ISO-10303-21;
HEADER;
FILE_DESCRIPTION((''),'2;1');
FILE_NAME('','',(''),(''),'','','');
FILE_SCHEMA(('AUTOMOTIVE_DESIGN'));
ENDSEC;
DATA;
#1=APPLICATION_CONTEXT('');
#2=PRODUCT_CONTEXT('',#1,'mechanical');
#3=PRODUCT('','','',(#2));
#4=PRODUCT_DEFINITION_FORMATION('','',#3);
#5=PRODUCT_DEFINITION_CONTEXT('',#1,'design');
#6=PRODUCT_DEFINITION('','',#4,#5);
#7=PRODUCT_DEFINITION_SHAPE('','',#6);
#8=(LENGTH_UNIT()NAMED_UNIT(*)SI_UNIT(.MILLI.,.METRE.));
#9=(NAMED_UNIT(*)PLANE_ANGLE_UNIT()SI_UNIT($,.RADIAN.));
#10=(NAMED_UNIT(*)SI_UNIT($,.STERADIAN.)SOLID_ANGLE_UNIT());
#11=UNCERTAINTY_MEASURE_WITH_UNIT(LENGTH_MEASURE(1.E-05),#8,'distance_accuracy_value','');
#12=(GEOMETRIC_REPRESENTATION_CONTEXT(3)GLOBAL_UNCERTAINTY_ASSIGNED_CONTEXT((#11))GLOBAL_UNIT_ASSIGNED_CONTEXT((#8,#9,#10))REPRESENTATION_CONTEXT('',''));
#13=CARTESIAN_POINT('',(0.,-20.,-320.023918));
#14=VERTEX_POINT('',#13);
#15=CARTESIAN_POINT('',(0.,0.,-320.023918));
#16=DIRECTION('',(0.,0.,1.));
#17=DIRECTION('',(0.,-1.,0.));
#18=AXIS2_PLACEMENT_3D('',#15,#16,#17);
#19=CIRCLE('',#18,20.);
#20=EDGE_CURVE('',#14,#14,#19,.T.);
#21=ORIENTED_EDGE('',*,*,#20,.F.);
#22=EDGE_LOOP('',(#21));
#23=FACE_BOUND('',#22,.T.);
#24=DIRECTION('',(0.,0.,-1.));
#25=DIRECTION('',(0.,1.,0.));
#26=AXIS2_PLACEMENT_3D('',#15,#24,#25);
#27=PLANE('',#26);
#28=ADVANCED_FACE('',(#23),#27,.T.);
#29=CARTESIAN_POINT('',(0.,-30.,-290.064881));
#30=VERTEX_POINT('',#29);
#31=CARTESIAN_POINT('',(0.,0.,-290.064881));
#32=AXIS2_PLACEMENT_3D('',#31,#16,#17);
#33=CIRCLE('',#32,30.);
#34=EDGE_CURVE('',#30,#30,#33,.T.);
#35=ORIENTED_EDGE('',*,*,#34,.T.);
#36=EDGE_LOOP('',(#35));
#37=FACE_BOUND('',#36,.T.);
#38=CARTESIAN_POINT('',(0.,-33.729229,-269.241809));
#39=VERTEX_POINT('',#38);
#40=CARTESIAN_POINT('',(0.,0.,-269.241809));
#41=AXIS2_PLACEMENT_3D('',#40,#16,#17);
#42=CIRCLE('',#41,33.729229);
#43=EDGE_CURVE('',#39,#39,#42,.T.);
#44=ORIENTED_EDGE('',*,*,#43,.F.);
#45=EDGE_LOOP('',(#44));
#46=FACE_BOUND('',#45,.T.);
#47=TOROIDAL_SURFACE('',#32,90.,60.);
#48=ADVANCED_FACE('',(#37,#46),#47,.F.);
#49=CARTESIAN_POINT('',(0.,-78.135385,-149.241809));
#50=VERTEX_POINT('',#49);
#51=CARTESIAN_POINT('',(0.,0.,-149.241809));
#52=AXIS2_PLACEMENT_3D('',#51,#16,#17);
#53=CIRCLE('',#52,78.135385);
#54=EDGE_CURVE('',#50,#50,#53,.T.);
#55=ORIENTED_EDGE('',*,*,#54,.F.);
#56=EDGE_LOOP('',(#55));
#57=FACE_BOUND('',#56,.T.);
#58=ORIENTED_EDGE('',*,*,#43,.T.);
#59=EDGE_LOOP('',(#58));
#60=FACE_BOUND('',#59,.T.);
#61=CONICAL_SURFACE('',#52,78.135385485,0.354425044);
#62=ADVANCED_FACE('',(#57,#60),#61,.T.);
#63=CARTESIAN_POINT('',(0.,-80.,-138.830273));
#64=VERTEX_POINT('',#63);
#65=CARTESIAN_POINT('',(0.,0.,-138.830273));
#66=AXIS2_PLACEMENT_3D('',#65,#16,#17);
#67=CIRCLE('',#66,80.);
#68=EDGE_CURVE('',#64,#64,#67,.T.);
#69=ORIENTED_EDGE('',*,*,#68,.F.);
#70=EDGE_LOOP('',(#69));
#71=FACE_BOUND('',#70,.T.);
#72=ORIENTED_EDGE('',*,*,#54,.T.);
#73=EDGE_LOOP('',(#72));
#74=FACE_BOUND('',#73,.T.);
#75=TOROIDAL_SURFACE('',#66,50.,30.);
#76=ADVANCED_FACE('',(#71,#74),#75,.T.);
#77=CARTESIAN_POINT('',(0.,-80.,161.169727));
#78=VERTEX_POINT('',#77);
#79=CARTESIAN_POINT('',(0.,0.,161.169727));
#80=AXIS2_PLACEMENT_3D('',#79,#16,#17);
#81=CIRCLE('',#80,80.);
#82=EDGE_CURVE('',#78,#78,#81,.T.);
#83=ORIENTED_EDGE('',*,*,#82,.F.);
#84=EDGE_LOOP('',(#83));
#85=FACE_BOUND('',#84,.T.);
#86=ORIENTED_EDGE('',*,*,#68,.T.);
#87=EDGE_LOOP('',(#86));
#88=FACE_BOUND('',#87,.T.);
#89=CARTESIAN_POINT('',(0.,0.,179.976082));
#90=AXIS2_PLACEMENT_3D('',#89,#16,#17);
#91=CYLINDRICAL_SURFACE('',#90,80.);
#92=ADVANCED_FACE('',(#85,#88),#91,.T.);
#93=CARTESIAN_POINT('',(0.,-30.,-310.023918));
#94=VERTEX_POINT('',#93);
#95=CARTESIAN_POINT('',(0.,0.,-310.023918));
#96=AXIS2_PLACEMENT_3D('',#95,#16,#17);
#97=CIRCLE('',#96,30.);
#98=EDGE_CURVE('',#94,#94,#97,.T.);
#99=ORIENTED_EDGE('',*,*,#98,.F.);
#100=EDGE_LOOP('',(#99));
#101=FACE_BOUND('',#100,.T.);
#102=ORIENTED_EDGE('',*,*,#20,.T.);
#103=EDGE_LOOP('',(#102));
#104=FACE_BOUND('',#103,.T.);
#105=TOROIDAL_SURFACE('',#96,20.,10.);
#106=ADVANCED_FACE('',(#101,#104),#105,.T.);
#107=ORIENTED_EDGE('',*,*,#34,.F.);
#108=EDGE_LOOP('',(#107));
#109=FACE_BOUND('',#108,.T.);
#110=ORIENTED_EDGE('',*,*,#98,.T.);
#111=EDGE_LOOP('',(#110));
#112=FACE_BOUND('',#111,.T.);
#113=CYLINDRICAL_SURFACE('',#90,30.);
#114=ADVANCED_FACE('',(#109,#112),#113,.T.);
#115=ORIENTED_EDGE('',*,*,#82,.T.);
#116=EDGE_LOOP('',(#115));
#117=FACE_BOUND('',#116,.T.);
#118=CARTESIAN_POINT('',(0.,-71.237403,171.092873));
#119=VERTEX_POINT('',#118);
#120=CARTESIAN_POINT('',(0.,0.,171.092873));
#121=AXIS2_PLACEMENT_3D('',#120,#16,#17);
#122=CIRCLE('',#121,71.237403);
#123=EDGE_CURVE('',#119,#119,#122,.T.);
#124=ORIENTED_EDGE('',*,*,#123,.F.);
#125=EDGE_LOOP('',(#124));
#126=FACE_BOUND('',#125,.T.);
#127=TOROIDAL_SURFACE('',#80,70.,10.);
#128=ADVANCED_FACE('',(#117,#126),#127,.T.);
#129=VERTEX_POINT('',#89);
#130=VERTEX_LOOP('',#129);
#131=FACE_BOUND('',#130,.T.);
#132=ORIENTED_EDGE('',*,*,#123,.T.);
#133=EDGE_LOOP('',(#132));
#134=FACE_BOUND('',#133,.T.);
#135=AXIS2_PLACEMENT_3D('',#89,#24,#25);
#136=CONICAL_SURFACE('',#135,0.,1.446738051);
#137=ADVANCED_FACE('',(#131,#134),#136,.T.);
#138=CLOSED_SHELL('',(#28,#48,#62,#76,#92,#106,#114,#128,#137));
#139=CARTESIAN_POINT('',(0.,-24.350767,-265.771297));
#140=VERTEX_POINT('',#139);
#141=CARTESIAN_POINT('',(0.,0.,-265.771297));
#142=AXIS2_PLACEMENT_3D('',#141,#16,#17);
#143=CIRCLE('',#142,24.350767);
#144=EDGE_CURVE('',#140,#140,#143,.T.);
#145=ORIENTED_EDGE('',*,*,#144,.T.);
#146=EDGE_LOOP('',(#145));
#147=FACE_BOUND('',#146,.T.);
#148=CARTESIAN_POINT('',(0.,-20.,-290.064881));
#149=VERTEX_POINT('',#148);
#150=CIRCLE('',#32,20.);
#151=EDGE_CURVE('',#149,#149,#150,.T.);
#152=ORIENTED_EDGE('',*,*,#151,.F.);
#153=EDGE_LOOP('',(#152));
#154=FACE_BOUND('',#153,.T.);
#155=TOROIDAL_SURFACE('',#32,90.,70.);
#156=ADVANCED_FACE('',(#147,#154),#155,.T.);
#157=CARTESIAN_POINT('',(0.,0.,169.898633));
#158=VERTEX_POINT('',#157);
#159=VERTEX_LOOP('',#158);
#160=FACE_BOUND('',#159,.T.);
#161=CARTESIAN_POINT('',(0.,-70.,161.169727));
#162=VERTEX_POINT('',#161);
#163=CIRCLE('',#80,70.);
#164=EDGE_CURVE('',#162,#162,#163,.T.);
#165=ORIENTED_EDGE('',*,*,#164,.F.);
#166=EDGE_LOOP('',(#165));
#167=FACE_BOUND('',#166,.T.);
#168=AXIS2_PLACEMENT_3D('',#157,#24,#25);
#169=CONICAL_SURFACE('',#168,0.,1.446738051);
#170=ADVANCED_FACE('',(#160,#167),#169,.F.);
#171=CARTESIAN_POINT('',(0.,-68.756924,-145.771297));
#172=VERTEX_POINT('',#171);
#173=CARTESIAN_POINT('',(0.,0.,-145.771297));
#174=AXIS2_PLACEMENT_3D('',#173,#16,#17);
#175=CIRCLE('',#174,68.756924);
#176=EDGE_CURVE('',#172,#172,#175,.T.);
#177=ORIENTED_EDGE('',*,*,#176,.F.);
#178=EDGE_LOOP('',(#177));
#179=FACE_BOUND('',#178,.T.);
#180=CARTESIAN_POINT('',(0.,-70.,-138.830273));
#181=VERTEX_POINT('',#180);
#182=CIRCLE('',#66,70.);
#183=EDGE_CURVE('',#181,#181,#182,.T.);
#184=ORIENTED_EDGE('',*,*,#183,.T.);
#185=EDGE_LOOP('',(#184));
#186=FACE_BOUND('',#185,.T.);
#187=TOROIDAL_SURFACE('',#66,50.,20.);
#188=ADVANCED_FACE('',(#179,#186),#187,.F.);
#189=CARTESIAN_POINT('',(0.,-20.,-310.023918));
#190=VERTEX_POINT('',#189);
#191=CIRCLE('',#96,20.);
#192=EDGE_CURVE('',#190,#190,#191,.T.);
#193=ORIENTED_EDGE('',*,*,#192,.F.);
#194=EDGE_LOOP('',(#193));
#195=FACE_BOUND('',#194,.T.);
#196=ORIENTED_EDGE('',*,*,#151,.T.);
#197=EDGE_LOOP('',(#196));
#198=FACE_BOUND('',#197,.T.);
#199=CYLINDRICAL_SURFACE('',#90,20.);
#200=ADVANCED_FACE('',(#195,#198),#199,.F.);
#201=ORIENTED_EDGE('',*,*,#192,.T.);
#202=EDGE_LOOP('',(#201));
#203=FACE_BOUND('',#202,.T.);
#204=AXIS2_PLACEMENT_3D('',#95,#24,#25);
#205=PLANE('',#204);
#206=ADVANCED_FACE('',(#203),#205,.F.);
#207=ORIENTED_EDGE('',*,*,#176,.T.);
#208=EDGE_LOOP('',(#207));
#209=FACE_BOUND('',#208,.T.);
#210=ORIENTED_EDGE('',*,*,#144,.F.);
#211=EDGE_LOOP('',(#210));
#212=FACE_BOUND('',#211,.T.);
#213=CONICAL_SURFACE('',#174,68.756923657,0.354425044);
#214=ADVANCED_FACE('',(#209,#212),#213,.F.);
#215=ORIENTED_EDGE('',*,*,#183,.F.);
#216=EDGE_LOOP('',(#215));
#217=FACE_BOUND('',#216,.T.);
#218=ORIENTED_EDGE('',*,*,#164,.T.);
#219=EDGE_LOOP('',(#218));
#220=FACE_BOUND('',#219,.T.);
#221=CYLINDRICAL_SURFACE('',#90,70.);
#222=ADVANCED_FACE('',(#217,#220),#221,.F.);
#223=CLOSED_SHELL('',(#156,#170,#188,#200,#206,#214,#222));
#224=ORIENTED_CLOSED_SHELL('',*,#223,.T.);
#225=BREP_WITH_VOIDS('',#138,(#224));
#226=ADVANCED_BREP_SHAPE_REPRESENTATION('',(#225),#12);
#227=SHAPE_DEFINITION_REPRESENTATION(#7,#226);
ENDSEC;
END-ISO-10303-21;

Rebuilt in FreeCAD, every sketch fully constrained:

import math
import FreeCAD as App
import Part
import Sketcher

V = App.Vector

doc = App.newDocument("Part")
body = doc.addObject("PartDesign::Body", "Body")

# Sketch on YZ plane
sketch1 = doc.addObject("Sketcher::SketchObject", "Sketch")
body.addObject(sketch1)
sketch1.AttachmentSupport = (doc.YZ_Plane, [""])
sketch1.MapMode = "FlatFace"
sketch1.addGeometry(Part.LineSegment(V(20, -310, 0), V(0, -310, 0)), False)
sketch1.addGeometry(Part.LineSegment(V(0, -310, 0), V(0, -320, 0)), False)
sketch1.addGeometry(Part.LineSegment(V(0, -320, 0), V(20, -320, 0)), False)
sketch1.addGeometry(Part.ArcOfCircle(Part.Circle(V(20, -310, 0), V(0, 0, 1), 10), math.radians(-90), math.radians(0)), False)
sketch1.addGeometry(Part.LineSegment(V(30, -310, 0), V(30, -290, 0)), False)
sketch1.addGeometry(Part.ArcOfCircle(Part.Circle(V(90, -290, 0), V(0, 0, 1), 60), math.radians(160), math.radians(180)), False)
sketch1.addGeometry(Part.LineSegment(V(34, -269, 0), V(78, -149, 0)), False)
sketch1.addGeometry(Part.ArcOfCircle(Part.Circle(V(50, -139, 0), V(0, 0, 1), 30), math.radians(-20), math.radians(0)), False)
sketch1.addGeometry(Part.LineSegment(V(80, -139, 0), V(80, 161, 0)), False)
sketch1.addGeometry(Part.ArcOfCircle(Part.Circle(V(70, 161, 0), V(0, 0, 1), 10), math.radians(0), math.radians(83)), False)
sketch1.addGeometry(Part.LineSegment(V(71, 171, 0), V(0, 180, 0)), False)
sketch1.addGeometry(Part.LineSegment(V(0, 180, 0), V(0, 170, 0)), False)
sketch1.addGeometry(Part.LineSegment(V(0, 170, 0), V(70, 161, 0)), False)
sketch1.addGeometry(Part.LineSegment(V(70, 161, 0), V(70, -139, 0)), False)
sketch1.addGeometry(Part.ArcOfCircle(Part.Circle(V(50, -139, 0), V(0, 0, 1), 20), math.radians(-20), math.radians(0)), False)
sketch1.addGeometry(Part.LineSegment(V(69, -146, 0), V(24, -266, 0)), False)
sketch1.addGeometry(Part.ArcOfCircle(Part.Circle(V(90, -290, 0), V(0, 0, 1), 70), math.radians(160), math.radians(180)), False)
sketch1.addGeometry(Part.LineSegment(V(20, -290, 0), V(20, -310, 0)), False)
sketch1.addConstraint(Sketcher.Constraint("Coincident", 0, 2, 1, 1))
sketch1.addConstraint(Sketcher.Constraint("Coincident", 1, 2, 2, 1))
sketch1.addConstraint(Sketcher.Constraint("Tangent", 2, 2, 3, 1))
sketch1.addConstraint(Sketcher.Constraint("Tangent", 3, 2, 4, 1))
sketch1.addConstraint(Sketcher.Constraint("Tangent", 4, 2, 5, 2))
sketch1.addConstraint(Sketcher.Constraint("Tangent", 5, 1, 6, 1))
sketch1.addConstraint(Sketcher.Constraint("Tangent", 6, 2, 7, 1))
sketch1.addConstraint(Sketcher.Constraint("Tangent", 7, 2, 8, 1))
sketch1.addConstraint(Sketcher.Constraint("Tangent", 8, 2, 9, 1))
sketch1.addConstraint(Sketcher.Constraint("Tangent", 9, 2, 10, 1))
sketch1.addConstraint(Sketcher.Constraint("Coincident", 10, 2, 11, 1))
sketch1.addConstraint(Sketcher.Constraint("Coincident", 11, 2, 12, 1))
sketch1.addConstraint(Sketcher.Constraint("Coincident", 12, 2, 13, 1))
sketch1.addConstraint(Sketcher.Constraint("Tangent", 13, 2, 14, 2))
sketch1.addConstraint(Sketcher.Constraint("Tangent", 14, 1, 15, 1))
sketch1.addConstraint(Sketcher.Constraint("Tangent", 15, 2, 16, 1))
sketch1.addConstraint(Sketcher.Constraint("Tangent", 16, 2, 17, 1))
sketch1.addConstraint(Sketcher.Constraint("Coincident", 17, 2, 0, 1))
sketch1.addConstraint(Sketcher.Constraint("Horizontal", 0))
sketch1.addConstraint(Sketcher.Constraint("Vertical", 1))
sketch1.addConstraint(Sketcher.Constraint("Horizontal", 2))
sketch1.addConstraint(Sketcher.Constraint("Vertical", 4))
sketch1.addConstraint(Sketcher.Constraint("Vertical", 8))
sketch1.addConstraint(Sketcher.Constraint("Vertical", 11))
sketch1.addConstraint(Sketcher.Constraint("Vertical", 13))
sketch1.addConstraint(Sketcher.Constraint("Vertical", 17))
sketch1.addConstraint(Sketcher.Constraint("Coincident", 14, 3, 7, 3))
sketch1.addConstraint(Sketcher.Constraint("Coincident", 16, 3, 5, 3))
sketch1.addConstraint(Sketcher.Constraint("Coincident", 12, 2, 9, 3))
sketch1.addConstraint(Sketcher.Constraint("Coincident", 17, 2, 3, 3))
sketch1.addConstraint(Sketcher.Constraint("Equal", 3, 9))
sketch1.addConstraint(Sketcher.Constraint("PointOnObject", 0, 2, -2))
sketch1.addConstraint(Sketcher.Constraint("PointOnObject", 10, 2, -2))
sketch1.addConstraint(Sketcher.Constraint("Parallel", 10, 12))
sketch1.addConstraint(Sketcher.Constraint("Radius", 3, 10.0))
sketch1.addConstraint(Sketcher.Constraint("Radius", 5, 60.0))
sketch1.addConstraint(Sketcher.Constraint("Radius", 7, 30.0))
sketch1.addConstraint(Sketcher.Constraint("DistanceX", 0, 2, 0, 1, 20.0))
sketch1.addConstraint(Sketcher.Constraint("DistanceY", 8, 1, 8, 2, 300.0))
sketch1.addConstraint(Sketcher.Constraint("DistanceX", -1, 1, 7, 3, 50.0))
sketch1.addConstraint(Sketcher.Constraint("DistanceY", 5, 1, 6, 2, 120.0))
sketch1.addConstraint(Sketcher.Constraint("DistanceY", 11, 2, 11, 1, 10.077449))
sketch1.addConstraint(Sketcher.Constraint("DistanceY", 4, 1, 4, 2, 19.959037))
sketch1.addConstraint(Sketcher.Constraint("DistanceY", 3, 3, -1, 1, 310.023918))
revolution = doc.addObject("PartDesign::Revolution", "Revolution")
body.addObject(revolution)
revolution.Profile = sketch1
revolution.ReferenceAxis = (sketch1, ["V_Axis"])
revolution.Angle = 360

doc.recompute()
